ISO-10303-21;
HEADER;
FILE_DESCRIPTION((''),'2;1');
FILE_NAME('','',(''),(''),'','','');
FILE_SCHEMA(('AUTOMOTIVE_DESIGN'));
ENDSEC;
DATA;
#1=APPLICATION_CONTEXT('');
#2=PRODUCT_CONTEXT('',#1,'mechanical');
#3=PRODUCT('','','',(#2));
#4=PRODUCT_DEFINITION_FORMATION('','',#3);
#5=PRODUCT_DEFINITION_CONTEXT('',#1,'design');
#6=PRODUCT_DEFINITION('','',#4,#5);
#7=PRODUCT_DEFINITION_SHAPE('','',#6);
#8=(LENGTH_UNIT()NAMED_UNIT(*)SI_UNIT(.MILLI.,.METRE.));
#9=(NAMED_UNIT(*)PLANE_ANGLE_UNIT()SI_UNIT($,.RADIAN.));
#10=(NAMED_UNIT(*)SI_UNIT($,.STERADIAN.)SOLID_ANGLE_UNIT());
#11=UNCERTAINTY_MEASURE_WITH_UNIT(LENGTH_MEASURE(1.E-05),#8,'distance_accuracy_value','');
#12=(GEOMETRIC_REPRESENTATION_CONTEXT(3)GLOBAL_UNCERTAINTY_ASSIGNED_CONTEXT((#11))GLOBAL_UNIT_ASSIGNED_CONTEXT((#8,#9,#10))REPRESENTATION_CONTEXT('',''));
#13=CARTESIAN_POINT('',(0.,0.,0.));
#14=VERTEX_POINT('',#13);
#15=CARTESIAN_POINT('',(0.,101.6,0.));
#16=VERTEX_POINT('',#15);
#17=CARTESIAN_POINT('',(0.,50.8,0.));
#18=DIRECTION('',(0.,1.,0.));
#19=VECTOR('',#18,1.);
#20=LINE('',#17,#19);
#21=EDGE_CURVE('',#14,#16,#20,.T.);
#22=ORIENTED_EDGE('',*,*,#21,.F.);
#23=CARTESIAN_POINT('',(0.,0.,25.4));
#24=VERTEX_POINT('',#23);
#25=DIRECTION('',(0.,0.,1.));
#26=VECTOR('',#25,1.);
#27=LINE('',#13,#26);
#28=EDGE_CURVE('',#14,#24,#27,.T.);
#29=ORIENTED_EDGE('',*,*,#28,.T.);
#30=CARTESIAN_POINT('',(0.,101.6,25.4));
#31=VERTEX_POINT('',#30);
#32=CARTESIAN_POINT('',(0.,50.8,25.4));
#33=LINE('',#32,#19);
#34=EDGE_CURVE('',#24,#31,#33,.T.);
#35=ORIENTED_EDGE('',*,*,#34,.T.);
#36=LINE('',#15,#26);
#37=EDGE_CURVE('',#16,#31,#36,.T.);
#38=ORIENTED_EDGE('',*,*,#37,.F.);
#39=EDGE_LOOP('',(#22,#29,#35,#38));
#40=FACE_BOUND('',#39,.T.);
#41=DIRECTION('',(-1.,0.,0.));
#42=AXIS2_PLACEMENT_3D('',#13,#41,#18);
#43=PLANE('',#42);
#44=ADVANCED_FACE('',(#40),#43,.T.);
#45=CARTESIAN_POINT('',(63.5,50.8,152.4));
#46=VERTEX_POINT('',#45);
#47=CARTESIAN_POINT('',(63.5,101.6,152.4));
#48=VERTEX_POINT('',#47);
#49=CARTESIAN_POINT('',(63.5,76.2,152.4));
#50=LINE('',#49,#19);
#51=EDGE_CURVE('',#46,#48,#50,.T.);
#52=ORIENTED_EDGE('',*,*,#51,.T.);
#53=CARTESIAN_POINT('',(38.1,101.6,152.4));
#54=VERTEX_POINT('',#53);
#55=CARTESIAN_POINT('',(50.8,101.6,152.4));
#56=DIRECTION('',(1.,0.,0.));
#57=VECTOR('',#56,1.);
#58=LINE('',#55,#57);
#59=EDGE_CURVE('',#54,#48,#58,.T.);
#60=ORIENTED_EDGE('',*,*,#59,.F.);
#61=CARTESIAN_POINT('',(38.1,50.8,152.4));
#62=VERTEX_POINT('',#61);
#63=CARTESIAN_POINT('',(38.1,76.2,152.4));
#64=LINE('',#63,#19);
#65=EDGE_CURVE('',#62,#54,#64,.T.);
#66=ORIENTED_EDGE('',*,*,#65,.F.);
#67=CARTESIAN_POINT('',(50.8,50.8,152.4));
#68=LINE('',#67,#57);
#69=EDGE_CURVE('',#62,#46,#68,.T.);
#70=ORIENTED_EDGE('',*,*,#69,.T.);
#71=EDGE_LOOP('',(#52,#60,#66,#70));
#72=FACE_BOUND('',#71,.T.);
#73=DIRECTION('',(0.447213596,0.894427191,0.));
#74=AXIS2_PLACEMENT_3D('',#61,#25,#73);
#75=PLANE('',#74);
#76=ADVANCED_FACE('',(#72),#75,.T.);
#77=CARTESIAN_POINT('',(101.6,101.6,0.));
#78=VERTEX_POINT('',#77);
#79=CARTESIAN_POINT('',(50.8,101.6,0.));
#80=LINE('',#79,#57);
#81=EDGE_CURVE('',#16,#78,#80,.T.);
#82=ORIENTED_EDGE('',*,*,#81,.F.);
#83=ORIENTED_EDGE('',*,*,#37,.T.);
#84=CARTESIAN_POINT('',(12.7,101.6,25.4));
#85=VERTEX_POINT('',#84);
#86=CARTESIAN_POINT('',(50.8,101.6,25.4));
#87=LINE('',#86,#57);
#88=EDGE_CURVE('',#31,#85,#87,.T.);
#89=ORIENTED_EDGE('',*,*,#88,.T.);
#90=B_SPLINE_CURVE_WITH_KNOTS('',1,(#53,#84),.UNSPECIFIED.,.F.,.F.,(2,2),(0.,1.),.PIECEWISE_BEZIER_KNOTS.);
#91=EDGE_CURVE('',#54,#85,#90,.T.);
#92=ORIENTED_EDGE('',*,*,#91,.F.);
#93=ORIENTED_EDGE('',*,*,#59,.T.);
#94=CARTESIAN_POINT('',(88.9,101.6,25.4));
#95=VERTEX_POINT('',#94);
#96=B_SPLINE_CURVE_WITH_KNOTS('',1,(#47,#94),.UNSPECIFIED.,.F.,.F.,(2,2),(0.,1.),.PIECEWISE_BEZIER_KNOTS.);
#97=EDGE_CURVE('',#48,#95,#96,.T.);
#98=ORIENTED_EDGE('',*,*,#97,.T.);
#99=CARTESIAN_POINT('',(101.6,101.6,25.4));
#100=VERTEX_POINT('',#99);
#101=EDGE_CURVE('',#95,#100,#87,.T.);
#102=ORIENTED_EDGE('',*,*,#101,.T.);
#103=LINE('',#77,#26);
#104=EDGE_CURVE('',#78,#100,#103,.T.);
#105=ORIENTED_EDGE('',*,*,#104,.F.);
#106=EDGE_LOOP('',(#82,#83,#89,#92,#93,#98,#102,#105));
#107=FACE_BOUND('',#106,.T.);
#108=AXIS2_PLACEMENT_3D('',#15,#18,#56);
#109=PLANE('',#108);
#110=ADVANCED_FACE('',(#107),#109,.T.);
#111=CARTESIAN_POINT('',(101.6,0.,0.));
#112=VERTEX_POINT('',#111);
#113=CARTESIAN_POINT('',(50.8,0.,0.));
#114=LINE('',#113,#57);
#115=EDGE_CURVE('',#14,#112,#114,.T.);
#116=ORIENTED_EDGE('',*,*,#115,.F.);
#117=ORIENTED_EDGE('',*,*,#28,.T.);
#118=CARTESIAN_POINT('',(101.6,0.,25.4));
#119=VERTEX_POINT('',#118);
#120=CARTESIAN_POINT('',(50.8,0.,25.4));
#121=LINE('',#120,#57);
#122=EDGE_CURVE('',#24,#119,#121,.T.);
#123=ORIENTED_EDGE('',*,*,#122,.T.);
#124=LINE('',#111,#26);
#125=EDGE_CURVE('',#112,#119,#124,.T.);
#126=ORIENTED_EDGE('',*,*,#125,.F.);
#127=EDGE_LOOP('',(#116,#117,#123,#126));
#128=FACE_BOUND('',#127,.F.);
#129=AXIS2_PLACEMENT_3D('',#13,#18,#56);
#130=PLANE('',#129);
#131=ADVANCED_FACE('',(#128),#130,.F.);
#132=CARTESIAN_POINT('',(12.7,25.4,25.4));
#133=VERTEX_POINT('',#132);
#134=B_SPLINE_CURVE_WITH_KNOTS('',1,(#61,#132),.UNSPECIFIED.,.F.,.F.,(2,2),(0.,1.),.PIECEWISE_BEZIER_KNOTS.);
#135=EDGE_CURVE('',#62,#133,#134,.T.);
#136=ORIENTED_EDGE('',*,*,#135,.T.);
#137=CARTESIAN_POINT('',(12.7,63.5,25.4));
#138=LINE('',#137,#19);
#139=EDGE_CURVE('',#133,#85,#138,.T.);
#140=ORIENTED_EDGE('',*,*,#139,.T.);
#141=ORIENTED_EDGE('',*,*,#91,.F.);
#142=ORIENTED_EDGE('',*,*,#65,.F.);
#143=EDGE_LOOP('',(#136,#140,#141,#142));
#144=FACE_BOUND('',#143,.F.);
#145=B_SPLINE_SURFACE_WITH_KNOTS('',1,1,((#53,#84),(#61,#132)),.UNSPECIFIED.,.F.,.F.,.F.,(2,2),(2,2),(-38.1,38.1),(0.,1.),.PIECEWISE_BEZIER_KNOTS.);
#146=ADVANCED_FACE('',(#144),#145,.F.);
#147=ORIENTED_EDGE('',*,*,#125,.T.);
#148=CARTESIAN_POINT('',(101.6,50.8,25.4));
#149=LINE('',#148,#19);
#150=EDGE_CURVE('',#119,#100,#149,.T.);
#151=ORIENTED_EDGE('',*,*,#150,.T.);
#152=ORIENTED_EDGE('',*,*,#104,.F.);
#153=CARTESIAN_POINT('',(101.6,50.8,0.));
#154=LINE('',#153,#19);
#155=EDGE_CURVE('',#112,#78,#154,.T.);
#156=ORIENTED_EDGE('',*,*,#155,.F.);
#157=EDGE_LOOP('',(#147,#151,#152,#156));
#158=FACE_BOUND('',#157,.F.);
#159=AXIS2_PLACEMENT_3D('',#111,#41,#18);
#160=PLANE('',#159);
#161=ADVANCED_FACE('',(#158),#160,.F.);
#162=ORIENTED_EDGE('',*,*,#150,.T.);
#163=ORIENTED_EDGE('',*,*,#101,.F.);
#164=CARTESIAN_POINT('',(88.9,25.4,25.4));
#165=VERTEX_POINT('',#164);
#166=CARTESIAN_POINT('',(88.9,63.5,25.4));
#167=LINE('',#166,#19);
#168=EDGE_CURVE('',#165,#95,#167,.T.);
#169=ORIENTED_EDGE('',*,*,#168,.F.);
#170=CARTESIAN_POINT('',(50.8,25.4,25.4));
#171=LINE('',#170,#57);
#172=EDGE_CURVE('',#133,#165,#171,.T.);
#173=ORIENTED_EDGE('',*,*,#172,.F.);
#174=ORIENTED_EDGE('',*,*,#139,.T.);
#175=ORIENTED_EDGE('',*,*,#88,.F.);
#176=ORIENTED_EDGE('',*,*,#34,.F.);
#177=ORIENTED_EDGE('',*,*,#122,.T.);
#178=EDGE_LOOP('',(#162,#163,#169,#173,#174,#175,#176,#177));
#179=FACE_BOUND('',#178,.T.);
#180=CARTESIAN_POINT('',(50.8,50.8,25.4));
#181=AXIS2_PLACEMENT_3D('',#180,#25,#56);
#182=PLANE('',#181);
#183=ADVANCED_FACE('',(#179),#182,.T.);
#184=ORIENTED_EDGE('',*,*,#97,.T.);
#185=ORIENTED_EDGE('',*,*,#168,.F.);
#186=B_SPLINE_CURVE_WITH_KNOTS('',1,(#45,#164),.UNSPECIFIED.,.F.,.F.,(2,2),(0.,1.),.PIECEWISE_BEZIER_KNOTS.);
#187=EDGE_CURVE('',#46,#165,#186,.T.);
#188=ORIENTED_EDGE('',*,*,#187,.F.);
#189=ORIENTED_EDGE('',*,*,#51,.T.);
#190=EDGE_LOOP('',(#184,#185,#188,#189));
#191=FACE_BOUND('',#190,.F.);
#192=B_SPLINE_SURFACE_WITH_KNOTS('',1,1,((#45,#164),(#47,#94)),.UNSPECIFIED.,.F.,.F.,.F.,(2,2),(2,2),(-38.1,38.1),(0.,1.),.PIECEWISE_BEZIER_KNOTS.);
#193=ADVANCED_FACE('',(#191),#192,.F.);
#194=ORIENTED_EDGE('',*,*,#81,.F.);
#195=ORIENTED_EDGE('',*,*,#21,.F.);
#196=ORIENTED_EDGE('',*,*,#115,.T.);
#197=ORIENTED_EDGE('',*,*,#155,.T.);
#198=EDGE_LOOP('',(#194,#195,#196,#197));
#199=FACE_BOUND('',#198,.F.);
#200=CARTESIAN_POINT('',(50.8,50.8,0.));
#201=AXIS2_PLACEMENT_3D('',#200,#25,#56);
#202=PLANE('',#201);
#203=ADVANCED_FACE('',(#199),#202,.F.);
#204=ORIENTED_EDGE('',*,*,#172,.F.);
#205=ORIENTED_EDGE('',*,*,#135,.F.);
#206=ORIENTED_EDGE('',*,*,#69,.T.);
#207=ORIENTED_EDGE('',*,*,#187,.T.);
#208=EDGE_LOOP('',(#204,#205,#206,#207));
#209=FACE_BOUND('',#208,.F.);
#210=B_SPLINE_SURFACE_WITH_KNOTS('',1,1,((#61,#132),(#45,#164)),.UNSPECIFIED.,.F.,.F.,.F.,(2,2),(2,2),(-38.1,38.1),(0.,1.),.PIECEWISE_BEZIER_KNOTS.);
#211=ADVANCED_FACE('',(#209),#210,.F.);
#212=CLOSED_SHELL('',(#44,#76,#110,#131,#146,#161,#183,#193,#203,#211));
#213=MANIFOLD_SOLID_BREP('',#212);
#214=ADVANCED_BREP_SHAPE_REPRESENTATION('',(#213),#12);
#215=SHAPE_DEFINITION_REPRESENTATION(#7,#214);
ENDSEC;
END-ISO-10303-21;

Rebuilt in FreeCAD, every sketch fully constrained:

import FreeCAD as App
import Part
import Sketcher

V = App.Vector
Q = App.Units.Quantity

doc = App.newDocument("Part")
body = doc.addObject("PartDesign::Body", "Body")

sketch1 = body.newObject("Sketcher::SketchObject", "Sketch")
sketch1.AttachmentSupport = (doc.getObject("XY_Plane"), [""])
sketch1.MapMode = "FlatFace"
sketch1.addGeometry([
    Part.LineSegment(V(0, 101.6, 0), V(0, 0, 0)),
    Part.LineSegment(V(0, 0, 0), V(101.6, 0, 0)),
    Part.LineSegment(V(101.6, 0, 0), V(101.6, 101.6, 0)),
    Part.LineSegment(V(101.6, 101.6, 0), V(0, 101.6, 0)),
], False)
sketch1.addConstraint([
    Sketcher.Constraint("Coincident", 0, 2, 1, 1),
    Sketcher.Constraint("Coincident", 1, 2, 2, 1),
    Sketcher.Constraint("Coincident", 2, 2, 3, 1),
    Sketcher.Constraint("Coincident", 3, 2, 0, 1),
    Sketcher.Constraint("Vertical", 0),
    Sketcher.Constraint("Horizontal", 1),
    Sketcher.Constraint("Vertical", 2),
    Sketcher.Constraint("Horizontal", 3),
    Sketcher.Constraint("Coincident", 0, 2, -1, 1),
    Sketcher.Constraint("Equal", 3, 0),
    Sketcher.Constraint("DistanceX", 1, 1, 1, 2, Q("4 in")),
])
pad1 = body.newObject("PartDesign::Pad", "Pad")
pad1.Profile = sketch1
pad1.Length = Q("1 in")

sketch2 = body.newObject("Sketcher::SketchObject", "Sketch001")
sketch2.AttachmentSupport = (doc.getObject("XY_Plane"), [""])
sketch2.MapMode = "FlatFace"
sketch2.AttachmentOffset = App.Placement(V(0, 0, 6 * 25.4), App.Rotation())
sketch2.addGeometry([
    Part.LineSegment(V(38.1, 101.6, 0), V(38.1, 50.8, 0)),
    Part.LineSegment(V(38.1, 50.8, 0), V(63.5, 50.8, 0)),
    Part.LineSegment(V(63.5, 50.8, 0), V(63.5, 101.6, 0)),
    Part.LineSegment(V(63.5, 101.6, 0), V(38.1, 101.6, 0)),
], False)
sketch2.addConstraint([
    Sketcher.Constraint("Coincident", 0, 2, 1, 1),
    Sketcher.Constraint("Coincident", 1, 2, 2, 1),
    Sketcher.Constraint("Coincident", 2, 2, 3, 1),
    Sketcher.Constraint("Coincident", 3, 2, 0, 1),
    Sketcher.Constraint("Vertical", 0),
    Sketcher.Constraint("Horizontal", 1),
    Sketcher.Constraint("Vertical", 2),
    Sketcher.Constraint("Horizontal", 3),
    Sketcher.Constraint("DistanceX", 1, 1, 1, 2, Q("1 in")),
    Sketcher.Constraint("DistanceY", 0, 2, 0, 1, Q("2 in")),
    Sketcher.Constraint("DistanceY", -1, 1, 0, 2, Q("2 in")),
    Sketcher.Constraint("DistanceX", -1, 1, 0, 2, Q("1.5 in")),
])

sketch3 = body.newObject("Sketcher::SketchObject", "Sketch002")
sketch3.AttachmentSupport = (doc.getObject("XY_Plane"), [""])
sketch3.MapMode = "FlatFace"
sketch3.AttachmentOffset = App.Placement(V(0, 0, 1 * 25.4), App.Rotation())
sketch3.addGeometry([
    Part.LineSegment(V(12.7, 101.6, 0), V(12.7, 25.4, 0)),
    Part.LineSegment(V(12.7, 25.4, 0), V(88.9, 25.4, 0)),
    Part.LineSegment(V(88.9, 25.4, 0), V(88.9, 101.6, 0)),
    Part.LineSegment(V(88.9, 101.6, 0), V(12.7, 101.6, 0)),
], False)
sketch3.addConstraint([
    Sketcher.Constraint("Coincident", 0, 2, 1, 1),
    Sketcher.Constraint("Coincident", 1, 2, 2, 1),
    Sketcher.Constraint("Coincident", 2, 2, 3, 1),
    Sketcher.Constraint("Coincident", 3, 2, 0, 1),
    Sketcher.Constraint("Vertical", 0),
    Sketcher.Constraint("Horizontal", 1),
    Sketcher.Constraint("Vertical", 2),
    Sketcher.Constraint("Horizontal", 3),
    Sketcher.Constraint("Equal", 3, 0),
    Sketcher.Constraint("DistanceX", 1, 1, 1, 2, Q("3 in")),
    Sketcher.Constraint("DistanceY", -1, 1, 0, 2, Q("1 in")),
    Sketcher.Constraint("DistanceX", -1, 1, 0, 2, Q("0.5 in")),
])

additiveloft = body.newObject("PartDesign::AdditiveLoft", "AdditiveLoft")
additiveloft.Profile = sketch2
additiveloft.Sections = [sketch3]

doc.recompute()
